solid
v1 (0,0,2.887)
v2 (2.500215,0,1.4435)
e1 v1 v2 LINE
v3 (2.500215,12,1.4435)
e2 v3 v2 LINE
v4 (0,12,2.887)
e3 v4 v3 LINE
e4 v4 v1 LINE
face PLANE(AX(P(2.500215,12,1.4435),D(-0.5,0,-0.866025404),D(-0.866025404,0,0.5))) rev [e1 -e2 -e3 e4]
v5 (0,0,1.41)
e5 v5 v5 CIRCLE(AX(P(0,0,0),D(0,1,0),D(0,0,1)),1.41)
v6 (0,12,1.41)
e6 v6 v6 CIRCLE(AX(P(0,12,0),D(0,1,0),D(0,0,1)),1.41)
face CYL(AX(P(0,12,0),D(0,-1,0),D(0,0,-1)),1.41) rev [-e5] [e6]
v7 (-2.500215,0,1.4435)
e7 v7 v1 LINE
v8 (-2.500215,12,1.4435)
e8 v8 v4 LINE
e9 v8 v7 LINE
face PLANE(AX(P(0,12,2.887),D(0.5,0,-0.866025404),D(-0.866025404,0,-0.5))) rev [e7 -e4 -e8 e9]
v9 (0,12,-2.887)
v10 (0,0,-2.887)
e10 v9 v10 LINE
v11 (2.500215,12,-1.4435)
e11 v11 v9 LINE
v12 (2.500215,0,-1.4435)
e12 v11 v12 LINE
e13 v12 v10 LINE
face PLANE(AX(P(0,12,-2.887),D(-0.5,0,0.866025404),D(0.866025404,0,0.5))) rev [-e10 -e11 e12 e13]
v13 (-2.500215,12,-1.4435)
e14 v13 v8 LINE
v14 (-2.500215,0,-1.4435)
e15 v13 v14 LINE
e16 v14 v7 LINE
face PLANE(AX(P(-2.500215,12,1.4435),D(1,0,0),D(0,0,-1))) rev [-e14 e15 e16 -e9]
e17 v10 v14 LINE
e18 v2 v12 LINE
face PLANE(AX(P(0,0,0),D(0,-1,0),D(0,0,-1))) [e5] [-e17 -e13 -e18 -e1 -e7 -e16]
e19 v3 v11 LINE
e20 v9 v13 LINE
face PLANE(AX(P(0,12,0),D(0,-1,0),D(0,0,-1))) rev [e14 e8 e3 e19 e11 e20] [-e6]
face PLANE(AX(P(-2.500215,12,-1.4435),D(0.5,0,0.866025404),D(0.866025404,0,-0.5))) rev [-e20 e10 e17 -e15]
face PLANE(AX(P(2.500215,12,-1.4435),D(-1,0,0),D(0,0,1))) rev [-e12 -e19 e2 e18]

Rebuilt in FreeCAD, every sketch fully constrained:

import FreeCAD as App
import Part
import Sketcher
from FreeCAD import Vector
Q = App.Units.Quantity


def add_polygon(sketch, points):
    """Adds a closed chain of lines whose ends are joined by coincident constraints."""
    first, n = sketch.GeometryCount, len(points)
    for a, b in zip(points, points[1:] + points[:1]):
        sketch.addGeometry(Part.LineSegment(App.Vector(*a, 0), App.Vector(*b, 0)), False)
    for i in range(n):
        sketch.addConstraint(Sketcher.Constraint("Coincident", first + i, 2, first + (i + 1) % n, 1))

doc = App.newDocument("Part")
body = doc.addObject("PartDesign::Body", "Body")

# Sketch on XZ plane
sketch1 = doc.addObject("Sketcher::SketchObject", "Sketch")
body.addObject(sketch1)
sketch1.AttachmentSupport = (doc.XZ_Plane, [""])
sketch1.MapMode = "FlatFace"
add_polygon(sketch1, [(2.5, -1.4), (0, -2.9), (-2.5, -1.4), (-2.5, 1.4), (0, 2.9), (2.5, 1.4)])  # lines 0-5
sketch1.addGeometry(Part.Circle(Vector(0, 0, 0), Vector(0, 0, 1), 1.4), False)  # 6
sketch1.addConstraint([
    Sketcher.Constraint("Vertical", 2),
    Sketcher.Constraint("Vertical", 5),
    Sketcher.Constraint("Coincident", 6, 3, -1, 1),
    Sketcher.Constraint("Symmetric", 0, 2, 3, 2, -1, 1),
    Sketcher.Constraint("Symmetric", 1, 2, 4, 2, -1, 1),
    Sketcher.Constraint("PointOnObject", 0, 2, -2),
    Sketcher.Constraint("Parallel", 0, 3),
    Sketcher.Constraint("Horizontal", 2, 2, 4, 2),
    Sketcher.Constraint("Diameter", 6, 2.82),
    Sketcher.Constraint("Angle", 0, Q("-150 deg")),
    Sketcher.Constraint("DistanceY", 2, 1, 2, 2, 2.887),
    Sketcher.Constraint("Distance", 0, 2.887),
])
pad1 = doc.addObject("PartDesign::Pad", "Pad")
body.addObject(pad1)
pad1.Profile = sketch1
pad1.Length = 12
pad1.Reversed = True

doc.recompute()
